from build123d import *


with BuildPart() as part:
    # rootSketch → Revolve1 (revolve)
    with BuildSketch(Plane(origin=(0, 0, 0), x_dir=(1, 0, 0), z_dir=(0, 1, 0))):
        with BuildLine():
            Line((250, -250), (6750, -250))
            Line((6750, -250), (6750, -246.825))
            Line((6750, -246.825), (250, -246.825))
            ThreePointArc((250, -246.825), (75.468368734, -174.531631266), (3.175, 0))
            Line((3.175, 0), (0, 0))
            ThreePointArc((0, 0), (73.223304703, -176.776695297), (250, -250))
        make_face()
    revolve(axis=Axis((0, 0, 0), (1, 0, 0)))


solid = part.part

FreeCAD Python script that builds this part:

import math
import FreeCAD as App
import Part
import Sketcher

doc = App.newDocument("Part")
body = doc.addObject("PartDesign::Body", "Body")

# Sketch on XZ plane
sketch1 = body.newObject("Sketcher::SketchObject", "Sketch")
sketch1.AttachmentSupport = (doc.getObject("XZ_Plane"), [""])
sketch1.MapMode = "FlatFace"
sketch1.addGeometry(Part.LineSegment(App.Vector(250, 250, 0), App.Vector(6750, 250, 0)), False)
sketch1.addGeometry(Part.LineSegment(App.Vector(6750, 250, 0), App.Vector(6750, 246.8, 0)), False)
sketch1.addGeometry(Part.LineSegment(App.Vector(6750, 246.8, 0), App.Vector(250, 246.8, 0)), False)
sketch1.addGeometry(Part.ArcOfCircle(Part.Circle(App.Vector(250, 0, 0), App.Vector(0, 0, 1), 246.8), math.radians(90), math.radians(180)), False)
sketch1.addGeometry(Part.LineSegment(App.Vector(3.2, 0, 0), App.Vector(0, 0, 0)), False)
sketch1.addGeometry(Part.ArcOfCircle(Part.Circle(App.Vector(250, 0, 0), App.Vector(0, 0, 1), 250), math.radians(90), math.radians(180)), False)
sketch1.addConstraint(Sketcher.Constraint("Coincident", 0, 2, 1, 1))
sketch1.addConstraint(Sketcher.Constraint("Coincident", 1, 2, 2, 1))
sketch1.addConstraint(Sketcher.Constraint("Tangent", 2, 2, 3, 1))
sketch1.addConstraint(Sketcher.Constraint("Coincident", 3, 2, 4, 1))
sketch1.addConstraint(Sketcher.Constraint("Coincident", 4, 2, 5, 2))
sketch1.addConstraint(Sketcher.Constraint("Tangent", 5, 1, 0, 1))
sketch1.addConstraint(Sketcher.Constraint("Horizontal", 0))
sketch1.addConstraint(Sketcher.Constraint("Vertical", 1))
sketch1.addConstraint(Sketcher.Constraint("Horizontal", 2))
sketch1.addConstraint(Sketcher.Constraint("Horizontal", 4))
sketch1.addConstraint(Sketcher.Constraint("Coincident", 4, 2, -1, 1))
sketch1.addConstraint(Sketcher.Constraint("Coincident", 5, 3, 3, 3))
sketch1.addConstraint(Sketcher.Constraint("PointOnObject", 3, 3, -1))
sketch1.addConstraint(Sketcher.Constraint("Radius", 5, 250.0))
sketch1.addConstraint(Sketcher.Constraint("DistanceX", 0, 1, 0, 2, 6500.0))
sketch1.addConstraint(Sketcher.Constraint("Radius", 3, 246.825))
revolution = body.newObject("PartDesign::Revolution", "Revolution")
revolution.Profile = sketch1
revolution.ReferenceAxis = (sketch1, ["H_Axis"])
revolution.Angle = 360

doc.recompute()
